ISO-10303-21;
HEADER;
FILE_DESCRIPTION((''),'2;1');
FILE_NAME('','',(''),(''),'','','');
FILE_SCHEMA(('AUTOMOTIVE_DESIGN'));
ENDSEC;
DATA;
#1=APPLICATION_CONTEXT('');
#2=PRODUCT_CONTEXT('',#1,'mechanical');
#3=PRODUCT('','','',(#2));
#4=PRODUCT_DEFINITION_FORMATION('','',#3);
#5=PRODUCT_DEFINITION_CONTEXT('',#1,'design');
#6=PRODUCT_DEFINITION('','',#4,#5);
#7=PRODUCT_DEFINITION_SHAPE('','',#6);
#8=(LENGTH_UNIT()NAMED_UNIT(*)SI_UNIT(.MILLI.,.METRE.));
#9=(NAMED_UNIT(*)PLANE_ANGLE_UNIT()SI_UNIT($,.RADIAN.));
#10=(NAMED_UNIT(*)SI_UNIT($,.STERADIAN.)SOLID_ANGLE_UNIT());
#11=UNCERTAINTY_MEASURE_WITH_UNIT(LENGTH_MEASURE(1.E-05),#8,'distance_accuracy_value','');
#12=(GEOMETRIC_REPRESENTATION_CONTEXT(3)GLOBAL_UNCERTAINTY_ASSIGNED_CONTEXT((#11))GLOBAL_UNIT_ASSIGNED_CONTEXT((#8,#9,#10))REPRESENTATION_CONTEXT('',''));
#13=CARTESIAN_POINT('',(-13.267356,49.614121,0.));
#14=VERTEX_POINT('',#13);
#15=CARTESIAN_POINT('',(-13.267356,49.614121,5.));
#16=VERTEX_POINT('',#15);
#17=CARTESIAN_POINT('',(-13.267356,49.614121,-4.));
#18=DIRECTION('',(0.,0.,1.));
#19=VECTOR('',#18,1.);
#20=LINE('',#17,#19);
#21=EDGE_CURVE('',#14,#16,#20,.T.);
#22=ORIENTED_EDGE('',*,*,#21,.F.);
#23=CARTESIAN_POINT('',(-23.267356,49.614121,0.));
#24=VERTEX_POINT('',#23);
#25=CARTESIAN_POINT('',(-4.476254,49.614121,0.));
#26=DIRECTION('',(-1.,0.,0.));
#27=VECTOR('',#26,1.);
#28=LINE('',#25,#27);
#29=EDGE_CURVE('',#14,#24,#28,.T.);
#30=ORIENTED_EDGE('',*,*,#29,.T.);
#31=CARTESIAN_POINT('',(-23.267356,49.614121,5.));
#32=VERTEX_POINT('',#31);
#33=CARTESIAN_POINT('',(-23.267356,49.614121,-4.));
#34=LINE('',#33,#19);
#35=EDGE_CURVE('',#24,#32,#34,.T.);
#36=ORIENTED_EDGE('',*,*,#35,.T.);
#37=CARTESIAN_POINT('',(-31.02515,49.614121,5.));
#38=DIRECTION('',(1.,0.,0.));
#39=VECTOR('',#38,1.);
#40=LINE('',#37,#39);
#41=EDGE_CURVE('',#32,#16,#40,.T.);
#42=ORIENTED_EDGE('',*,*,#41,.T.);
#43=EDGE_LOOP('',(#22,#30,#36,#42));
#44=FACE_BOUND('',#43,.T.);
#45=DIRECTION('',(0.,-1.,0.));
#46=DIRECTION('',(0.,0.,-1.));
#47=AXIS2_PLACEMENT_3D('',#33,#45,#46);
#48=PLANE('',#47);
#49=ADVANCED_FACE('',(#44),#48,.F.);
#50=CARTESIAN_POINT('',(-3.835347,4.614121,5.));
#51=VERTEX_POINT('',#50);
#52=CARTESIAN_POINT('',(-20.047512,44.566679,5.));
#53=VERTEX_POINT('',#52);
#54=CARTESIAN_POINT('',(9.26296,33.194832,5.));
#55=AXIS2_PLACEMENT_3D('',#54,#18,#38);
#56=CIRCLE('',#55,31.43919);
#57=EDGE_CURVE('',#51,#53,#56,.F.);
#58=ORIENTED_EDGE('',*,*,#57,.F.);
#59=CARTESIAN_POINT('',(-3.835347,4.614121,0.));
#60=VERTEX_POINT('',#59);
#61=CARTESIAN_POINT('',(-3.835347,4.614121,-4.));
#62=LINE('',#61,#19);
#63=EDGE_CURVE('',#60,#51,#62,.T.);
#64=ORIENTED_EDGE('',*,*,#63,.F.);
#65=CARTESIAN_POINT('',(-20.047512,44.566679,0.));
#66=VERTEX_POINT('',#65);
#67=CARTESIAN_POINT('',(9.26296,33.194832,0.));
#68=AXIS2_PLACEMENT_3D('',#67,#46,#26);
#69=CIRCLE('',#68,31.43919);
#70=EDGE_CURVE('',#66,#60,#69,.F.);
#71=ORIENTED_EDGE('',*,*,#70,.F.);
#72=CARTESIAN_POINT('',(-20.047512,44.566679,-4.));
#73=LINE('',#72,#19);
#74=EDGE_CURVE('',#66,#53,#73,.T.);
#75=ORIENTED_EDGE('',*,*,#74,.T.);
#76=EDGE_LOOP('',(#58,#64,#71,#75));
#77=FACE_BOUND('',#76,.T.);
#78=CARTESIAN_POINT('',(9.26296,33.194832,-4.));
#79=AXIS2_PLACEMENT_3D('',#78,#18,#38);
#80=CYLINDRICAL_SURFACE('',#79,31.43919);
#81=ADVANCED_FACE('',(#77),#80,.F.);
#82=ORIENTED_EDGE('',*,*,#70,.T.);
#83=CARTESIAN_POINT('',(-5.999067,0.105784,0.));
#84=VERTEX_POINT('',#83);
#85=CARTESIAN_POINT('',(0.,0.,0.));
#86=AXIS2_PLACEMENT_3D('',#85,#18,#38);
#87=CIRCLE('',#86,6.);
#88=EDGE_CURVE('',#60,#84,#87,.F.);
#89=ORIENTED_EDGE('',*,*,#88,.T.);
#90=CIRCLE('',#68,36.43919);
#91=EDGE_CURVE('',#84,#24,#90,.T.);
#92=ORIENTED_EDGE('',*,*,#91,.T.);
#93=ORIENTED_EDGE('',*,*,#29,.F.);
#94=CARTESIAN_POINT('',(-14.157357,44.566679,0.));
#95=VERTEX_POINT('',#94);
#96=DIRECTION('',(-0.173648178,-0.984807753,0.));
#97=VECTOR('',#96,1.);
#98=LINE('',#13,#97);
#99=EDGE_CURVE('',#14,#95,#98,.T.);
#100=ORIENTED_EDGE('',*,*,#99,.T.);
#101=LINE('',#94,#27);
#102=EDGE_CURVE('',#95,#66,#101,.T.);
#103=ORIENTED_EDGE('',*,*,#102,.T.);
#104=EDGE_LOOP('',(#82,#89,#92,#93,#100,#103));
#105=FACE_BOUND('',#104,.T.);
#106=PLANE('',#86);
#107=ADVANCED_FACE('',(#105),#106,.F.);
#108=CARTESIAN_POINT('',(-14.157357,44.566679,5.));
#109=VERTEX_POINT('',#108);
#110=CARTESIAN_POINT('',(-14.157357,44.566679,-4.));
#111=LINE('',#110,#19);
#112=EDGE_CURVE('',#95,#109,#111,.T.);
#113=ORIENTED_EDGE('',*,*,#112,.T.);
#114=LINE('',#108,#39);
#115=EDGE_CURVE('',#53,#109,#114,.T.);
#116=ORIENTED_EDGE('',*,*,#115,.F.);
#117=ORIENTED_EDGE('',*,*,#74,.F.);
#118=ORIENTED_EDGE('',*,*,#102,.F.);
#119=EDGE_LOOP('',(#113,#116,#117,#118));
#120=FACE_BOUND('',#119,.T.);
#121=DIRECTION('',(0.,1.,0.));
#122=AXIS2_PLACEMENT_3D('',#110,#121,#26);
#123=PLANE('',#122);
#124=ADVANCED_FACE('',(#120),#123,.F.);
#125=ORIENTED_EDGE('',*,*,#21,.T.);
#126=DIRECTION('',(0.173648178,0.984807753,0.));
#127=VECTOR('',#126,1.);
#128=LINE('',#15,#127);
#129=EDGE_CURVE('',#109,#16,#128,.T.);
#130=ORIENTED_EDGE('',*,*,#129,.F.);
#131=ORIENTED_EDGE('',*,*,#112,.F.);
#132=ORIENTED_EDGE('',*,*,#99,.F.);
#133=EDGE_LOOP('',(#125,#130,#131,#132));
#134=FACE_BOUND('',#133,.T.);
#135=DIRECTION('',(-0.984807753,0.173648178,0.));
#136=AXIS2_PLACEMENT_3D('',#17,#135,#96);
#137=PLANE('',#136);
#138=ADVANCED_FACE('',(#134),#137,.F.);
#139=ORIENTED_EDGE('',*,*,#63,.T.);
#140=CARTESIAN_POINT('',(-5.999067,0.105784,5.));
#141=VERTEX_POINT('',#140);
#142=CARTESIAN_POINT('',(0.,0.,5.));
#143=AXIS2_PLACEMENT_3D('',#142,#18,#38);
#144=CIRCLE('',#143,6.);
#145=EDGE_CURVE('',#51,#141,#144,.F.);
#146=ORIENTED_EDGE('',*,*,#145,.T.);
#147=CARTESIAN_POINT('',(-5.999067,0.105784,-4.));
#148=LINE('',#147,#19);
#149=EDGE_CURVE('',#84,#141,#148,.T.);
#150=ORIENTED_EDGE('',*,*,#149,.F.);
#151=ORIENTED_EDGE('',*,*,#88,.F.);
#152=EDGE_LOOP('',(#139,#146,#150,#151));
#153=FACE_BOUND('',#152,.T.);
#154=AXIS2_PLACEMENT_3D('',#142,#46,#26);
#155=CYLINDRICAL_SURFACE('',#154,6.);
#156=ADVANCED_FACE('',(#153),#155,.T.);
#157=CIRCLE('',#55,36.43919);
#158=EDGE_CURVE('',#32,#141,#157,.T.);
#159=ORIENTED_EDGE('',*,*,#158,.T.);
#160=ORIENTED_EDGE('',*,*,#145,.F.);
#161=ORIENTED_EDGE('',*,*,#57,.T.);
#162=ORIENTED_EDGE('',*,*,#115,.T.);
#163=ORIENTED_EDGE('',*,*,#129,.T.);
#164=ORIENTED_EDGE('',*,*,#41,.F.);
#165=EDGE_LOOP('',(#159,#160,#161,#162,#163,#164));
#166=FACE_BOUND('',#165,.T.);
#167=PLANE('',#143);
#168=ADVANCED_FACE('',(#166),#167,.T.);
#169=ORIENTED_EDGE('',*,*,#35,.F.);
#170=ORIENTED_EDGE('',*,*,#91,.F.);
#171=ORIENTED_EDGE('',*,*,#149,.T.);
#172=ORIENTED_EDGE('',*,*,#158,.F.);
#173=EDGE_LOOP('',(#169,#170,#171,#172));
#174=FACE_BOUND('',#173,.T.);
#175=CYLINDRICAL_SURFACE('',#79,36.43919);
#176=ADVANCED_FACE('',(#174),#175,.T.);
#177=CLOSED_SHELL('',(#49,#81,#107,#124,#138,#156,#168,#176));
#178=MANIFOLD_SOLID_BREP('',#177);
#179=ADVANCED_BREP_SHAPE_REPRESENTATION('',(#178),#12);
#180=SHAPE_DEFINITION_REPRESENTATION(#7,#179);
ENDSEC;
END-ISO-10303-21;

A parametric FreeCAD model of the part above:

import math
import FreeCAD as App
import Part
import Sketcher
Q = App.Units.Quantity


def add_polygon(sketch, points):
    """Adds a closed chain of lines whose ends are joined by coincident constraints."""
    first, n = sketch.GeometryCount, len(points)
    for a, b in zip(points, points[1:] + points[:1]):
        sketch.addGeometry(Part.LineSegment(App.Vector(*a, 0), App.Vector(*b, 0)), False)
    for i in range(n):
        sketch.addConstraint(Sketcher.Constraint("Coincident", first + i, 2, first + (i + 1) % n, 1))

doc = App.newDocument("Part")
body = doc.addObject("PartDesign::Body", "Body")

# Sketch on XY plane
sketch1 = body.newObject("Sketcher::SketchObject", "Sketch")
sketch1.AttachmentSupport = (doc.getObject("XY_Plane"), [""])
sketch1.MapMode = "FlatFace"
sketch1.addGeometry([
    Part.ArcOfCircle(Part.Circle(App.Vector(0, 0, 0), App.Vector(0, 0, 1), 6), math.radians(-40.574093), math.radians(-21.385956)),
    Part.ArcOfCircle(Part.Circle(App.Vector(0, 0, 0), App.Vector(0, 0, 1), 6), math.radians(-21.385956), math.radians(319.425907)),
], False)
sketch1.addConstraint([
    Sketcher.Constraint("Tangent", 0, 1, 1, 2),
    Sketcher.Constraint("Coincident", 1, 1, 0, 2),
    Sketcher.Constraint("Coincident", 0, 3, -1, 1),
    Sketcher.Constraint("Radius", 0, 6.0),
    Sketcher.Constraint("DistanceX", -1, 1, 1, 1, 5.586871),
    Sketcher.Constraint("DistanceX", 0, 1, 1, 1, 1.029478),
])
pad1 = body.newObject("PartDesign::Pad", "Pad")
pad1.Profile = sketch1
pad1.Length = 5

# Sketch on XY plane
sketch2 = body.newObject("Sketcher::SketchObject", "Sketch001")
sketch2.AttachmentSupport = (doc.getObject("XY_Plane"), [""])
sketch2.MapMode = "FlatFace"
sketch2.AttachmentOffset = App.Placement(App.Vector(0, 0, 1), App.Rotation())
sketch2.addGeometry([
    Part.LineSegment(App.Vector(-23.267356, 49.614121, 0), App.Vector(-13.267356, 49.614121, 0)),  # 0
    Part.LineSegment(App.Vector(-13.267356, 49.614121, 0), App.Vector(-14.157357, 44.566679, 0)),  # 1
    Part.LineSegment(App.Vector(-14.157357, 44.566679, 0), App.Vector(-20.047512, 44.566679, 0)),  # 2
    Part.ArcOfCircle(Part.Circle(App.Vector(9.26296, 33.194832, 0), App.Vector(0, 0, 1), 31.43919), math.radians(158.794793), math.radians(245.3784)),  # 3
    Part.ArcOfCircle(Part.Circle(App.Vector(0, 0, 0), App.Vector(0, 0, 1), 6), math.radians(129.734014), math.radians(178.989783)),  # 4
    Part.ArcOfCircle(Part.Circle(App.Vector(9.26296, 33.194832, 0), App.Vector(0, 0, 1), 36.43919), math.radians(153.218183), math.radians(245.238909)),  # 5
], False)
sketch2.addConstraint([
    Sketcher.Constraint("Coincident", 0, 2, 1, 1),
    Sketcher.Constraint("Coincident", 1, 2, 2, 1),
    Sketcher.Constraint("Coincident", 2, 2, 3, 1),
    Sketcher.Constraint("Coincident", 3, 2, 4, 1),
    Sketcher.Constraint("Coincident", 4, 2, 5, 2),
    Sketcher.Constraint("Coincident", 5, 1, 0, 1),
    Sketcher.Constraint("Horizontal", 0),
    Sketcher.Constraint("Horizontal", 2),
    Sketcher.Constraint("Coincident", 4, 3, -1, 1),
    Sketcher.Constraint("Coincident", 5, 3, 3, 3),
    Sketcher.Constraint("Radius", 4, 6.0),
    Sketcher.Constraint("DistanceX", 0, 1, 0, 2, 10.0),
    Sketcher.Constraint("Angle", 1, Q("-100 deg")),
    Sketcher.Constraint("Radius", 3, 31.43919),
    Sketcher.Constraint("Radius", 5, 36.43919),
    Sketcher.Constraint("DistanceX", 1, 2, 0, 2, 0.89),
    Sketcher.Constraint("DistanceX", 2, 2, 2, 1, 5.890155),
    Sketcher.Constraint("DistanceX", -1, 1, 3, 3, 9.26296),
    Sketcher.Constraint("DistanceY", -1, 1, 3, 3, 33.194832),
])
pad2 = body.newObject("PartDesign::Pad", "Pad001")
pad2.Profile = sketch2
pad2.Length = 10
pad2.Midplane = True

# Sketch on XZ plane
sketch3 = body.newObject("Sketcher::SketchObject", "Sketch002")
sketch3.AttachmentSupport = (doc.getObject("XZ_Plane"), [""])
sketch3.MapMode = "FlatFace"
add_polygon(sketch3, [(-34.729, -11.553), (-34.729, 13.553), (13.553, 13.553), (13.553, -11.553)])  # lines 0-3
add_polygon(sketch3, [(-31.02515, 5), (-31.02515, 0), (6.185645, 0), (6.185645, 5)])  # lines 4-7
sketch3.addConstraint([
    Sketcher.Constraint("Vertical", 0),
    Sketcher.Constraint("Horizontal", 1),
    Sketcher.Constraint("Vertical", 2),
    Sketcher.Constraint("Horizontal", 3),
    Sketcher.Constraint("Vertical", 4),
    Sketcher.Constraint("Horizontal", 5),
    Sketcher.Constraint("Vertical", 6),
    Sketcher.Constraint("Horizontal", 7),
    Sketcher.Constraint("PointOnObject", 4, 2, -1),
    Sketcher.Constraint("DistanceY", 4, 2, 4, 1, 5.0),
    Sketcher.Constraint("DistanceX", 1, 1, 1, 2, 48.282),
    Sketcher.Constraint("DistanceY", 0, 1, 0, 2, 25.106),
    Sketcher.Constraint("DistanceX", 0, 2, -1, 1, 34.729),
    Sketcher.Constraint("DistanceY", -1, 1, 0, 2, 13.553),
    Sketcher.Constraint("DistanceX", 5, 1, 5, 2, 37.210796),
    Sketcher.Constraint("DistanceX", 4, 2, -1, 1, 31.02515),
])
pocket1 = body.newObject("PartDesign::Pocket", "Pocket")
pocket1.Profile = sketch3
pocket1.Type = "ThroughAll"
pocket1.Midplane = True

doc.recompute()
